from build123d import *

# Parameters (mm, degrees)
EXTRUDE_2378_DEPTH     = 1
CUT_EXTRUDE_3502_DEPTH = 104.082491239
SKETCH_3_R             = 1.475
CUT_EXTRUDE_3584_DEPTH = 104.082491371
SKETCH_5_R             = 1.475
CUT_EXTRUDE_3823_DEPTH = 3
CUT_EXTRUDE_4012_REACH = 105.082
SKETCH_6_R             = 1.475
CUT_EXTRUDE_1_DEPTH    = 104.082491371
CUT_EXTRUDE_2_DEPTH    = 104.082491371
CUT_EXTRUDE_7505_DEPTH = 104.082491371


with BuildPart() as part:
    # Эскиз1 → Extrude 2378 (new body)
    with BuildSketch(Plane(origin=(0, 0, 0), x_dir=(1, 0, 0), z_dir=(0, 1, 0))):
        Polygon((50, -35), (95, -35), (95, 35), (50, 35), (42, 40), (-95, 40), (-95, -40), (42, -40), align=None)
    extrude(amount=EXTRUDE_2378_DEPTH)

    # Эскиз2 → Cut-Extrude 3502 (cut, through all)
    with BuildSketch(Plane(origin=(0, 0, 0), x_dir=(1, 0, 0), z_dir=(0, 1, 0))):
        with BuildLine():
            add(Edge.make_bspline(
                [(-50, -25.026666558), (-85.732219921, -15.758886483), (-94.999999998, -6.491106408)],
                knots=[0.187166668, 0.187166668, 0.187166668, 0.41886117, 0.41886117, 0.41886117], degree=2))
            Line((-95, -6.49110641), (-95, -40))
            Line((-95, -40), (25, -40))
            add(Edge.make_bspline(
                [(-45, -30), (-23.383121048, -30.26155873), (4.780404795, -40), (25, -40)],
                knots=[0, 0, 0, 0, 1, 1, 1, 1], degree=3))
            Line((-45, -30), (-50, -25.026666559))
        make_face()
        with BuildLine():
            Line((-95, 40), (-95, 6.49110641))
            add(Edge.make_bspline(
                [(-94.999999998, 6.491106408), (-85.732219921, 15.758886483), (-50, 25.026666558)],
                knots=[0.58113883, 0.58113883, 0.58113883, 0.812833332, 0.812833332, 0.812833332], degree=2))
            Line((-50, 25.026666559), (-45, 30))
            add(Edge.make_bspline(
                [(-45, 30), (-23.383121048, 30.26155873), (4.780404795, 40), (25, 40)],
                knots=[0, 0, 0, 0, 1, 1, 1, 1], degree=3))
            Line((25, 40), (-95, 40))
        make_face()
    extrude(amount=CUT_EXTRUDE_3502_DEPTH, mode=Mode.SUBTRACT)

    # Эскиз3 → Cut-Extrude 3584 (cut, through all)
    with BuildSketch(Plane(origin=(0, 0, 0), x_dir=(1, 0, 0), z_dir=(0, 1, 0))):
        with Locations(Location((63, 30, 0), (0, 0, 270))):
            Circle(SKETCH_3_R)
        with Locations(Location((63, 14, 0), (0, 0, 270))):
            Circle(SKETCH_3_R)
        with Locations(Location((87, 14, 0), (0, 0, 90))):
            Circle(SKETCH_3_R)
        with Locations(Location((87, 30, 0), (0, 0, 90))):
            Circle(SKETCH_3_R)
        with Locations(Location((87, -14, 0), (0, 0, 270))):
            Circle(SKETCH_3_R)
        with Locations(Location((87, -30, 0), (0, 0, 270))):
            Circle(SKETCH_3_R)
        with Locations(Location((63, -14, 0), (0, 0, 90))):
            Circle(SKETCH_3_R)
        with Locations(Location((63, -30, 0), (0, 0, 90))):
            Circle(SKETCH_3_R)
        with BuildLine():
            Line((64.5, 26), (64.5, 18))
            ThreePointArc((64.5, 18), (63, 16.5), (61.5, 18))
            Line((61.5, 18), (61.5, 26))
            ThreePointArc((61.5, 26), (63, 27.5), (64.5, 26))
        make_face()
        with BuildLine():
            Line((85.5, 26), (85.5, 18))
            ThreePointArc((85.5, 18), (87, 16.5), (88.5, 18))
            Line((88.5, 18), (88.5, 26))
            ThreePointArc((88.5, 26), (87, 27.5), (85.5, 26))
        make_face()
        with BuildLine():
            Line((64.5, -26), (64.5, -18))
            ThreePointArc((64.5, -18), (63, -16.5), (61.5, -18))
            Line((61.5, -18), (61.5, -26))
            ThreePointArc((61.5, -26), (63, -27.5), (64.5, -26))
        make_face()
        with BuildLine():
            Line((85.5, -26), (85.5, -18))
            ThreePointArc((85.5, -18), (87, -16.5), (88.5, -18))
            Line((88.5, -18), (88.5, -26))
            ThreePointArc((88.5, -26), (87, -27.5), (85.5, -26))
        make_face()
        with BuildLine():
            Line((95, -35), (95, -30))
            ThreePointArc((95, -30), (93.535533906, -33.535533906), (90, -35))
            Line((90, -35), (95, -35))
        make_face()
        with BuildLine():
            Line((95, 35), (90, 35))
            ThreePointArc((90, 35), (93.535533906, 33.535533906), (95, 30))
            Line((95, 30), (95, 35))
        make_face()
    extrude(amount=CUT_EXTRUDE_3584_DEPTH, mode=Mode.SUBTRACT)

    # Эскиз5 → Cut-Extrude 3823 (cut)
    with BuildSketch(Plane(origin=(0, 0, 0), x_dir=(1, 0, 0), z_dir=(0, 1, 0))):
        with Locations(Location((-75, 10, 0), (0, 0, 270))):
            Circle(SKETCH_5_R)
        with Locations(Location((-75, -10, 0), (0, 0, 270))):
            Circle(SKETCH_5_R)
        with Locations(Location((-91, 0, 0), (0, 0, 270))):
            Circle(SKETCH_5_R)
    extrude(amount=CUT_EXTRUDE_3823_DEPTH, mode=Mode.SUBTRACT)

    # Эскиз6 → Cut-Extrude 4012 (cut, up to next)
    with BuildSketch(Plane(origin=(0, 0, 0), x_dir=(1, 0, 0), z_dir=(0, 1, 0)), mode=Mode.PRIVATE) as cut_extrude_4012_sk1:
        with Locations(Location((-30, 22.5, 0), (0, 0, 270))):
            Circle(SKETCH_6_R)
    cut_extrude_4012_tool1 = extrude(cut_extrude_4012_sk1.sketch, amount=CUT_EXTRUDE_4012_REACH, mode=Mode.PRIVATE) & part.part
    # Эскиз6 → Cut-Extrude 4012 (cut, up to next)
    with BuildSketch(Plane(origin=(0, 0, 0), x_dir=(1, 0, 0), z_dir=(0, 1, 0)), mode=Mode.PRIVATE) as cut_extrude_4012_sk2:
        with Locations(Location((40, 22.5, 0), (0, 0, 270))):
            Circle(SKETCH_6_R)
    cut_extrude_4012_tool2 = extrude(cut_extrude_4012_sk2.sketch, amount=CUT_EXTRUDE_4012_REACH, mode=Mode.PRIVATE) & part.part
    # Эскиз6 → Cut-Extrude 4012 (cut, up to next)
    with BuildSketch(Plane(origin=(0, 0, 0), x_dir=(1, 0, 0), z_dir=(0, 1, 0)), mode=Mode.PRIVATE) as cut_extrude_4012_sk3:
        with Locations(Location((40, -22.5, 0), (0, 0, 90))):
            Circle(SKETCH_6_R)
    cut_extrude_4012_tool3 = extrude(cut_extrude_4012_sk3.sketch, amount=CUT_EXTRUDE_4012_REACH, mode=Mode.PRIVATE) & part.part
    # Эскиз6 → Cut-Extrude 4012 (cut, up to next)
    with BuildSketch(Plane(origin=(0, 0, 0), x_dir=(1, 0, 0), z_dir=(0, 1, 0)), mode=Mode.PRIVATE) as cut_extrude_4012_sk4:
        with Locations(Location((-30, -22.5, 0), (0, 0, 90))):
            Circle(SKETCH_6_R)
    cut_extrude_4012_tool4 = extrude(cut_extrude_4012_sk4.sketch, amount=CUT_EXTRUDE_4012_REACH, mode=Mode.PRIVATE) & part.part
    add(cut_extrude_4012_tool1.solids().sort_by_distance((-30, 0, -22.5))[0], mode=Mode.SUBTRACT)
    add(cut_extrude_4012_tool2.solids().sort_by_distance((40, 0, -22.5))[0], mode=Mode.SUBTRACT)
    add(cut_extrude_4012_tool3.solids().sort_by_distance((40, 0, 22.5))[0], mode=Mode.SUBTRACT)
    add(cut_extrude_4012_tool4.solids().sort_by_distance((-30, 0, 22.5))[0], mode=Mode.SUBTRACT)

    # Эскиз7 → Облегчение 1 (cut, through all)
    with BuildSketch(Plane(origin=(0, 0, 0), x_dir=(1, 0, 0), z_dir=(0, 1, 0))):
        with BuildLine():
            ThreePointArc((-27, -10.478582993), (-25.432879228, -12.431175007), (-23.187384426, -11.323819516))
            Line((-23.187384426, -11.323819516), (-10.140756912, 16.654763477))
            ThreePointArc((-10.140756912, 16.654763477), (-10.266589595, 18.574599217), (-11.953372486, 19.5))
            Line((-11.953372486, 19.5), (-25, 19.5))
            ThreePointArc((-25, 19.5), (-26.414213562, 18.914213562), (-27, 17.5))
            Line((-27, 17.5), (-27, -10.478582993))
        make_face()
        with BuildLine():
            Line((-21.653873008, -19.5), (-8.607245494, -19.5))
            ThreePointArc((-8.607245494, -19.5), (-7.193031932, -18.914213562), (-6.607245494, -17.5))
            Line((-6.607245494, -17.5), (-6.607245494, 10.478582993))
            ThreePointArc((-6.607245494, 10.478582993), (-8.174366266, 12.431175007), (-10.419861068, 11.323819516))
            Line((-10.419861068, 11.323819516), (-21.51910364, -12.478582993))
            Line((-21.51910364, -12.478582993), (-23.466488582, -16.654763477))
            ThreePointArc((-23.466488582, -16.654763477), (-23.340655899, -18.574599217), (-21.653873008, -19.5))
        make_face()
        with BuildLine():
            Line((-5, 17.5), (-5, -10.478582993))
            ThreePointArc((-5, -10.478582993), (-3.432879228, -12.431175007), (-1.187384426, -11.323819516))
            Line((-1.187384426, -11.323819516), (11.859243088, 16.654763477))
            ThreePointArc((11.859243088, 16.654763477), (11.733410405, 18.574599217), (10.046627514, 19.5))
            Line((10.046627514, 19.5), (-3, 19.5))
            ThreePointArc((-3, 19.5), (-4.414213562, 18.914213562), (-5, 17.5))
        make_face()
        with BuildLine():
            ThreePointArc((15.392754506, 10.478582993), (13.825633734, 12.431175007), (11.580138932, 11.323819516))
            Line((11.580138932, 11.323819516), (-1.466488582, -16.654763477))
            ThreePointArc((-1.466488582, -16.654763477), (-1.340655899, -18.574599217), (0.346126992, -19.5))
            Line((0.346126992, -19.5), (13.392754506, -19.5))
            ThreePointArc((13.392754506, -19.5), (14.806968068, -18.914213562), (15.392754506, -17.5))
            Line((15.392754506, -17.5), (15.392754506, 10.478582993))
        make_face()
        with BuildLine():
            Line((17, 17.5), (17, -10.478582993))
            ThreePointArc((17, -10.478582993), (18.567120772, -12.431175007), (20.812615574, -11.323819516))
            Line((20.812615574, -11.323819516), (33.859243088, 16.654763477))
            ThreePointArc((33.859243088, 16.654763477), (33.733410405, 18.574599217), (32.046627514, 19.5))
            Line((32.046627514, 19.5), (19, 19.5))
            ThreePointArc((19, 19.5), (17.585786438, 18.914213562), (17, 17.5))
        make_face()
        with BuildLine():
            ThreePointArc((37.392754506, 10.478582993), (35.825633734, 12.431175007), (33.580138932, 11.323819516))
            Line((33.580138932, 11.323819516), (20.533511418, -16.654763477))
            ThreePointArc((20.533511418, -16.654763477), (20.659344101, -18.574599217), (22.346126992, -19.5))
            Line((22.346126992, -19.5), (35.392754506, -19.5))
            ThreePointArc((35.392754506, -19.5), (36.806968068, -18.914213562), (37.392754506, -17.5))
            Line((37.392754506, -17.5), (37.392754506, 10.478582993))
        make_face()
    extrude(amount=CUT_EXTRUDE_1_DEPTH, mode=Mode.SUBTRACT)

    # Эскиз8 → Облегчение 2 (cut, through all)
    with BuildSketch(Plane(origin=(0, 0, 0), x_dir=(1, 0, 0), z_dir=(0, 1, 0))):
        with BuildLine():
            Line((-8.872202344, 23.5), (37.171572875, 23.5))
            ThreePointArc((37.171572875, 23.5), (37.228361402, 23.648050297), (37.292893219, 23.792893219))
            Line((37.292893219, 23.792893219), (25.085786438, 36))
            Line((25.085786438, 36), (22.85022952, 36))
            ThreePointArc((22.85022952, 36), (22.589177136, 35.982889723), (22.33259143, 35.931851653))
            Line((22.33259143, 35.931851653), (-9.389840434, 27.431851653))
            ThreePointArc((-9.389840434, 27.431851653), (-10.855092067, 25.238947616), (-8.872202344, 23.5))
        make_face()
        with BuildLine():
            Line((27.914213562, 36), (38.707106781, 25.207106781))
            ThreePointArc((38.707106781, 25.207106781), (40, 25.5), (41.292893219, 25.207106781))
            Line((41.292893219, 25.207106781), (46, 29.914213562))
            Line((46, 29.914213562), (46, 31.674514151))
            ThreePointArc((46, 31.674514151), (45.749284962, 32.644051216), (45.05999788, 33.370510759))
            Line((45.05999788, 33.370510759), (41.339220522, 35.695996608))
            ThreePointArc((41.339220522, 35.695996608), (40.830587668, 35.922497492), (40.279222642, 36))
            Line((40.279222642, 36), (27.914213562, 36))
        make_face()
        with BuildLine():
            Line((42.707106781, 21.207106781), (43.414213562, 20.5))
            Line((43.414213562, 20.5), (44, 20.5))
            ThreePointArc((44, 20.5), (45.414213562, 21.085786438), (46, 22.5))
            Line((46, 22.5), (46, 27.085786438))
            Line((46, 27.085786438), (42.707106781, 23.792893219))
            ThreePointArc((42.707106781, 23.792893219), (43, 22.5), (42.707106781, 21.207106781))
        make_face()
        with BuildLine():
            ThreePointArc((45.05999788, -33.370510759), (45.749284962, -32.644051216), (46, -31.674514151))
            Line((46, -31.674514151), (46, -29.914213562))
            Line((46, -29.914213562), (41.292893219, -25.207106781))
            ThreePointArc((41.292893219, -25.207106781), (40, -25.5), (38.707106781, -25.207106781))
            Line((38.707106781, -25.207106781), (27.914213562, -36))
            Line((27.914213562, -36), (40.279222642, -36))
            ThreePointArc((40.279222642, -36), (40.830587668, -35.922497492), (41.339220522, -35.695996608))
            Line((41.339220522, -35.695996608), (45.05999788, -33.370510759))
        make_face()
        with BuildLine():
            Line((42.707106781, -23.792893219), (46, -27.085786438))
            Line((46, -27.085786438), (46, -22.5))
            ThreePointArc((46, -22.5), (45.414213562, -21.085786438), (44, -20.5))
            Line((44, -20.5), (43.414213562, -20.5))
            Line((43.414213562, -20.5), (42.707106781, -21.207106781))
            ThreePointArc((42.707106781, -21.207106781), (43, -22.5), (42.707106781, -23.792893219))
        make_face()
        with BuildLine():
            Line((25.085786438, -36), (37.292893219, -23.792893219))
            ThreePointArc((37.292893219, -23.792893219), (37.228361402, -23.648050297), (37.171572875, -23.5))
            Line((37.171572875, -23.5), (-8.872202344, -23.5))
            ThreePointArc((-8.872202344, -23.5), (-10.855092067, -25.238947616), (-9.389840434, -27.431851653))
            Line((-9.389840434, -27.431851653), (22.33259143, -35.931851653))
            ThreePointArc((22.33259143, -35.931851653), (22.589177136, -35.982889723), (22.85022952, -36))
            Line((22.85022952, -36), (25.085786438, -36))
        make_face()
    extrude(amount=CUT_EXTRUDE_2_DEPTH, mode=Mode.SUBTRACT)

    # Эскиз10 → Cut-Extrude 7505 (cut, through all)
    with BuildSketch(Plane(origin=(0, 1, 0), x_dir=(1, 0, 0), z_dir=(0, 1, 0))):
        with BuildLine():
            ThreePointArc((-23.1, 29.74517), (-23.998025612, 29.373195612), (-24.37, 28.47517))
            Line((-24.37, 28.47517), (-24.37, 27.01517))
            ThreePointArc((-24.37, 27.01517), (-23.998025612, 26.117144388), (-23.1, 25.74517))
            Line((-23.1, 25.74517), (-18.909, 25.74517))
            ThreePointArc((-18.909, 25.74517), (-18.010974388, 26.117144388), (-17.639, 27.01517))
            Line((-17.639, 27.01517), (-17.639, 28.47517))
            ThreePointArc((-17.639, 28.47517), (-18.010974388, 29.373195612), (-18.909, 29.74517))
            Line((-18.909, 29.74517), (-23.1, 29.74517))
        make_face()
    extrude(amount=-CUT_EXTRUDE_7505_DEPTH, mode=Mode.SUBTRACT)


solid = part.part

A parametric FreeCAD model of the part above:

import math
import FreeCAD as App
import Part
import Sketcher
from FreeCAD import Vector
Q = App.Units.Quantity

doc = App.newDocument("Part")
body = doc.addObject("PartDesign::Body", "Body")

# Sketch on XZ plane
sketch1 = body.newObject("Sketcher::SketchObject", "Sketch")
sketch1.AttachmentSupport = (doc.getObject("XZ_Plane"), [""])
sketch1.MapMode = "FlatFace"
sketch1.addGeometry([
    Part.LineSegment(Vector(50, 35, 0), Vector(95, 35, 0)),  # 0
    Part.LineSegment(Vector(95, 35, 0), Vector(95, -35, 0)),  # 1
    Part.LineSegment(Vector(95, -35, 0), Vector(50, -35, 0)),  # 2
    Part.LineSegment(Vector(50, -35, 0), Vector(42, -40, 0)),  # 3
    Part.LineSegment(Vector(42, -40, 0), Vector(-95, -40, 0)),  # 4
    Part.LineSegment(Vector(-95, -40, 0), Vector(-95, 40, 0)),  # 5
    Part.LineSegment(Vector(-95, 40, 0), Vector(42, 40, 0)),  # 6
    Part.LineSegment(Vector(42, 40, 0), Vector(50, 35, 0)),  # 7
], False)
sketch1.addConstraint([
    Sketcher.Constraint("Coincident", 0, 2, 1, 1),
    Sketcher.Constraint("Coincident", 1, 2, 2, 1),
    Sketcher.Constraint("Coincident", 2, 2, 3, 1),
    Sketcher.Constraint("Coincident", 3, 2, 4, 1),
    Sketcher.Constraint("Coincident", 4, 2, 5, 1),
    Sketcher.Constraint("Coincident", 5, 2, 6, 1),
    Sketcher.Constraint("Coincident", 6, 2, 7, 1),
    Sketcher.Constraint("Coincident", 7, 2, 0, 1),
    Sketcher.Constraint("Horizontal", 0),
    Sketcher.Constraint("Vertical", 1),
    Sketcher.Constraint("Horizontal", 2),
    Sketcher.Constraint("Horizontal", 4),
    Sketcher.Constraint("Vertical", 5),
    Sketcher.Constraint("Horizontal", 6),
    Sketcher.Constraint("Symmetric", 3, 2, 6, 2, -1),
    Sketcher.Constraint("Symmetric", 2, 2, 7, 2, -1),
    Sketcher.Constraint("DistanceX", 0, 1, 0, 2, 45.0),
    Sketcher.Constraint("DistanceX", 4, 2, 4, 1, 137.0),
    Sketcher.Constraint("DistanceY", 1, 2, 1, 1, 70.0),
    Sketcher.Constraint("DistanceY", 5, 1, 5, 2, 80.0),
    Sketcher.Constraint("DistanceX", -1, 1, 0, 2, 95.0),
    Sketcher.Constraint("DistanceX", -1, 1, 3, 2, 42.0),
])
pad1 = body.newObject("PartDesign::Pad", "Pad")
pad1.Profile = sketch1
pad1.Length = 1
pad1.Reversed = True

# Sketch on XZ plane
sketch2 = body.newObject("Sketcher::SketchObject", "Sketch001")
sketch2.AttachmentSupport = (doc.getObject("XZ_Plane"), [""])
sketch2.MapMode = "FlatFace"
sketch2.addGeometry([
    Part.BSplineCurve([Vector(-50, 25.026667, 0), Vector(-85.73222, 15.758886, 0), Vector(-95, 6.491106, 0)], [3, 3], [0.187166668, 0.41886117], False, 2, [1, 1, 1], False),  # 0
    Part.LineSegment(Vector(-95, 6.491106, 0), Vector(-95, 40, 0)),  # 1
    Part.LineSegment(Vector(-95, 40, 0), Vector(25, 40, 0)),  # 2
    Part.BSplineCurve([Vector(-45, 30, 0), Vector(-23.383121, 30.261559, 0), Vector(4.780405, 40, 0), Vector(25, 40, 0)], [4, 4], [0, 1], False, 3, [1, 1, 1, 1], False),  # 3
    Part.LineSegment(Vector(-45, 30, 0), Vector(-50, 25.026667, 0)),  # 4
    Part.LineSegment(Vector(-95, -40, 0), Vector(-95, -6.491106, 0)),  # 5
    Part.BSplineCurve([Vector(-95, -6.491106, 0), Vector(-85.73222, -15.758886, 0), Vector(-50, -25.026667, 0)], [3, 3], [0.58113883, 0.812833332], False, 2, [1, 1, 1], False),  # 6
    Part.LineSegment(Vector(-50, -25.026667, 0), Vector(-45, -30, 0)),  # 7
    Part.BSplineCurve([Vector(-45, -30, 0), Vector(-23.383121, -30.261559, 0), Vector(4.780405, -40, 0), Vector(25, -40, 0)], [4, 4], [0, 1], False, 3, [1, 1, 1, 1], False),  # 8
    Part.LineSegment(Vector(25, -40, 0), Vector(-95, -40, 0)),  # 9
], False)
sketch2.addConstraint([
    Sketcher.Constraint("Block", 0),
    Sketcher.Constraint("Block", 3),
    Sketcher.Constraint("Block", 6),
    Sketcher.Constraint("Block", 8),
    Sketcher.Constraint("Coincident", 0, 2, 1, 1),
    Sketcher.Constraint("Coincident", 1, 2, 2, 1),
    Sketcher.Constraint("Coincident", 2, 2, 3, 2),
    Sketcher.Constraint("Coincident", 3, 1, 4, 1),
    Sketcher.Constraint("Coincident", 4, 2, 0, 1),
    Sketcher.Constraint("Coincident", 5, 2, 6, 1),
    Sketcher.Constraint("Coincident", 6, 2, 7, 1),
    Sketcher.Constraint("Coincident", 7, 2, 8, 1),
    Sketcher.Constraint("Coincident", 8, 2, 9, 1),
    Sketcher.Constraint("Coincident", 9, 2, 5, 1),
    Sketcher.Constraint("Vertical", 1),
    Sketcher.Constraint("Horizontal", 2),
    Sketcher.Constraint("Vertical", 5),
    Sketcher.Constraint("Horizontal", 9),
])
pocket1 = body.newObject("PartDesign::Pocket", "Pocket")
pocket1.Profile = sketch2
pocket1.Type = "ThroughAll"

# Sketch on XZ plane
sketch3 = body.newObject("Sketcher::SketchObject", "Sketch002")
sketch3.AttachmentSupport = (doc.getObject("XZ_Plane"), [""])
sketch3.MapMode = "FlatFace"
sketch3.addGeometry([
    Part.Circle(Vector(63, -30, 0), Vector(0, 0, 1), 1.475),  # 0
    Part.Circle(Vector(63, -14, 0), Vector(0, 0, 1), 1.475),  # 1
    Part.Circle(Vector(87, -14, 0), Vector(0, 0, 1), 1.475),  # 2
    Part.Circle(Vector(87, -30, 0), Vector(0, 0, 1), 1.475),  # 3
    Part.Circle(Vector(87, 14, 0), Vector(0, 0, 1), 1.475),  # 4
    Part.Circle(Vector(87, 30, 0), Vector(0, 0, 1), 1.475),  # 5
    Part.Circle(Vector(63, 14, 0), Vector(0, 0, 1), 1.475),  # 6
    Part.Circle(Vector(63, 30, 0), Vector(0, 0, 1), 1.475),  # 7
    Part.LineSegment(Vector(64.5, -18, 0), Vector(64.5, -26, 0)),  # 8
    Part.ArcOfCircle(Part.Circle(Vector(63, -26, 0), Vector(0, 0, 1), 1.5), math.radians(180), math.radians(360)),  # 9
    Part.LineSegment(Vector(61.5, -26, 0), Vector(61.5, -18, 0)),  # 10
    Part.ArcOfCircle(Part.Circle(Vector(63, -18, 0), Vector(0, 0, 1), 1.5), math.radians(0), math.radians(180)),  # 11
    Part.LineSegment(Vector(85.5, -26, 0), Vector(85.5, -18, 0)),  # 12
    Part.ArcOfCircle(Part.Circle(Vector(87, -18, 0), Vector(0, 0, 1), 1.5), math.radians(0), math.radians(180)),  # 13
    Part.LineSegment(Vector(88.5, -18, 0), Vector(88.5, -26, 0)),  # 14
    Part.ArcOfCircle(Part.Circle(Vector(87, -26, 0), Vector(0, 0, 1), 1.5), math.radians(180), math.radians(360)),  # 15
    Part.LineSegment(Vector(64.5, 26, 0), Vector(64.5, 18, 0)),  # 16
    Part.ArcOfCircle(Part.Circle(Vector(63, 18, 0), Vector(0, 0, 1), 1.5), math.radians(180), math.radians(360)),  # 17
    Part.LineSegment(Vector(61.5, 18, 0), Vector(61.5, 26, 0)),  # 18
    Part.ArcOfCircle(Part.Circle(Vector(63, 26, 0), Vector(0, 0, 1), 1.5), math.radians(0), math.radians(180)),  # 19
    Part.LineSegment(Vector(85.5, 18, 0), Vector(85.5, 26, 0)),  # 20
    Part.ArcOfCircle(Part.Circle(Vector(87, 26, 0), Vector(0, 0, 1), 1.5), math.radians(0), math.radians(180)),  # 21
    Part.LineSegment(Vector(88.5, 26, 0), Vector(88.5, 18, 0)),  # 22
    Part.ArcOfCircle(Part.Circle(Vector(87, 18, 0), Vector(0, 0, 1), 1.5), math.radians(180), math.radians(360)),  # 23
    Part.LineSegment(Vector(95, 35, 0), Vector(95, 30, 0)),  # 24
    Part.ArcOfCircle(Part.Circle(Vector(90, 30, 0), Vector(0, 0, 1), 5), math.radians(0), math.radians(90)),  # 25
    Part.LineSegment(Vector(90, 35, 0), Vector(95, 35, 0)),  # 26
    Part.LineSegment(Vector(95, -35, 0), Vector(90, -35, 0)),  # 27
    Part.ArcOfCircle(Part.Circle(Vector(90, -30, 0), Vector(0, 0, 1), 5), math.radians(-90), math.radians(0)),  # 28
    Part.LineSegment(Vector(95, -30, 0), Vector(95, -35, 0)),  # 29
], False)
sketch3.addConstraint([
    Sketcher.Constraint("Tangent", 8, 2, 9, 2),
    Sketcher.Constraint("Tangent", 9, 1, 10, 1),
    Sketcher.Constraint("Tangent", 10, 2, 11, 2),
    Sketcher.Constraint("Tangent", 11, 1, 8, 1),
    Sketcher.Constraint("Tangent", 12, 2, 13, 2),
    Sketcher.Constraint("Tangent", 13, 1, 14, 1),
    Sketcher.Constraint("Tangent", 14, 2, 15, 2),
    Sketcher.Constraint("Tangent", 15, 1, 12, 1),
    Sketcher.Constraint("Tangent", 16, 2, 17, 2),
    Sketcher.Constraint("Tangent", 17, 1, 18, 1),
    Sketcher.Constraint("Tangent", 18, 2, 19, 2),
    Sketcher.Constraint("Tangent", 19, 1, 16, 1),
    Sketcher.Constraint("Tangent", 20, 2, 21, 2),
    Sketcher.Constraint("Tangent", 21, 1, 22, 1),
    Sketcher.Constraint("Tangent", 22, 2, 23, 2),
    Sketcher.Constraint("Tangent", 23, 1, 20, 1),
    Sketcher.Constraint("Tangent", 24, 2, 25, 1),
    Sketcher.Constraint("Tangent", 25, 2, 26, 1),
    Sketcher.Constraint("Coincident", 26, 2, 24, 1),
    Sketcher.Constraint("Tangent", 27, 2, 28, 1),
    Sketcher.Constraint("Tangent", 28, 2, 29, 1),
    Sketcher.Constraint("Coincident", 29, 2, 27, 1),
    Sketcher.Constraint("Vertical", 8),
    Sketcher.Constraint("Vertical", 10),
    Sketcher.Constraint("Vertical", 12),
    Sketcher.Constraint("Vertical", 14),
    Sketcher.Constraint("Vertical", 16),
    Sketcher.Constraint("Vertical", 18),
    Sketcher.Constraint("Vertical", 20),
    Sketcher.Constraint("Vertical", 22),
    Sketcher.Constraint("Vertical", 24),
    Sketcher.Constraint("Horizontal", 26),
    Sketcher.Constraint("Horizontal", 27),
    Sketcher.Constraint("Vertical", 29),
    Sketcher.Constraint("Equal", 0, 1),
    Sketcher.Constraint("Equal", 1, 2),
    Sketcher.Constraint("Equal", 2, 3),
    Sketcher.Constraint("Equal", 3, 4),
    Sketcher.Constraint("Equal", 4, 5),
    Sketcher.Constraint("Equal", 5, 6),
    Sketcher.Constraint("Equal", 6, 7),
    Sketcher.Constraint("Equal", 11, 13),
    Sketcher.Constraint("Equal", 15, 17),
    Sketcher.Constraint("Equal", 19, 21),
    Sketcher.Constraint("Equal", 25, 28),
    Sketcher.Constraint("Symmetric", 2, 3, 4, 3, -1),
    Sketcher.Constraint("Symmetric", 3, 3, 5, 3, -1),
    Sketcher.Constraint("Symmetric", 1, 3, 6, 3, -1),
    Sketcher.Constraint("Symmetric", 0, 3, 7, 3, -1),
    Sketcher.Constraint("Symmetric", 11, 3, 17, 3, -1),
    Sketcher.Constraint("Symmetric", 15, 3, 21, 3, -1),
    Sketcher.Constraint("Symmetric", 25, 3, 28, 3, -1),
    Sketcher.Constraint("Horizontal", 1, 3, 2, 3),
    Sketcher.Constraint("Horizontal", 0, 3, 3, 3),
    Sketcher.Constraint("Horizontal", 11, 3, 13, 3),
    Sketcher.Constraint("Horizontal", 9, 3, 15, 3),
    Sketcher.Constraint("Horizontal", 19, 3, 21, 3),
    Sketcher.Constraint("Horizontal", 17, 3, 23, 3),
    Sketcher.Constraint("Horizontal", 7, 3, 25, 3),
    Sketcher.Constraint("Vertical", 0, 3, 1, 3),
    Sketcher.Constraint("Vertical", 2, 3, 3, 3),
    Sketcher.Constraint("Vertical", 7, 3, 9, 3),
    Sketcher.Constraint("Vertical", 5, 3, 13, 3),
    Sketcher.Constraint("Radius", 25, 5.0),
    Sketcher.Constraint("Radius", 9, 1.5),
    Sketcher.Constraint("Diameter", 0, 2.95),
    Sketcher.Constraint("DistanceY", 8, 2, 8, 1, 8.0),
    Sketcher.Constraint("DistanceX", -1, 1, 0, 3, 63.0),
    Sketcher.Constraint("DistanceY", 0, 3, -1, 1, 30.0),
    Sketcher.Constraint("DistanceY", 1, 3, -1, 1, 14.0),
    Sketcher.Constraint("DistanceX", -1, 1, 2, 3, 87.0),
    Sketcher.Constraint("DistanceY", 9, 3, -1, 1, 26.0),
    Sketcher.Constraint("DistanceX", -1, 1, 25, 3, 90.0),
])
pocket2 = body.newObject("PartDesign::Pocket", "Pocket001")
pocket2.Profile = sketch3
pocket2.Type = "ThroughAll"

# Sketch on XZ plane
sketch4 = body.newObject("Sketcher::SketchObject", "Sketch003")
sketch4.AttachmentSupport = (doc.getObject("XZ_Plane"), [""])
sketch4.MapMode = "FlatFace"
sketch4.addGeometry([
    Part.Circle(Vector(-75, -10, 0), Vector(0, 0, 1), 1.475),
    Part.Circle(Vector(-75, 10, 0), Vector(0, 0, 1), 1.475),
    Part.Circle(Vector(-91, 0, 0), Vector(0, 0, 1), 1.475),
], False)
sketch4.addConstraint([
    Sketcher.Constraint("Equal", 0, 1),
    Sketcher.Constraint("Equal", 1, 2),
    Sketcher.Constraint("Symmetric", 0, 3, 1, 3, -1),
    Sketcher.Constraint("PointOnObject", 2, 3, -1),
    Sketcher.Constraint("Diameter", 0, 2.95),
    Sketcher.Constraint("DistanceX", 0, 3, -1, 1, 75.0),
    Sketcher.Constraint("DistanceY", 0, 3, -1, 1, 10.0),
    Sketcher.Constraint("DistanceX", 2, 3, -1, 1, 91.0),
])
pocket3 = body.newObject("PartDesign::Pocket", "Pocket002")
pocket3.Profile = sketch4
pocket3.Length = 3

# Sketch on XZ plane
sketch5 = body.newObject("Sketcher::SketchObject", "Sketch004")
sketch5.AttachmentSupport = (doc.getObject("XZ_Plane"), [""])
sketch5.MapMode = "FlatFace"
sketch5.addGeometry(Part.Circle(Vector(-30, -22.5, 0), Vector(0, 0, 1), 1.475), False)
sketch5.addConstraint([
    Sketcher.Constraint("Diameter", 0, 2.95),
    Sketcher.Constraint("DistanceX", 0, 3, -1, 1, 30.0),
    Sketcher.Constraint("DistanceY", 0, 3, -1, 1, 22.5),
])
pocket4 = body.newObject("PartDesign::Pocket", "Pocket003")
pocket4.Profile = sketch5
pocket4.Type = "UpToFirst"

# Sketch on XZ plane
sketch6 = body.newObject("Sketcher::SketchObject", "Sketch005")
sketch6.AttachmentSupport = (doc.getObject("XZ_Plane"), [""])
sketch6.MapMode = "FlatFace"
sketch6.addGeometry(Part.Circle(Vector(40, -22.5, 0), Vector(0, 0, 1), 1.475), False)
sketch6.addConstraint([
    Sketcher.Constraint("Diameter", 0, 2.95),
    Sketcher.Constraint("DistanceX", -1, 1, 0, 3, 40.0),
    Sketcher.Constraint("DistanceY", 0, 3, -1, 1, 22.5),
])
pocket5 = body.newObject("PartDesign::Pocket", "Pocket004")
pocket5.Profile = sketch6
pocket5.Type = "UpToFirst"

# Sketch on XZ plane
sketch7 = body.newObject("Sketcher::SketchObject", "Sketch006")
sketch7.AttachmentSupport = (doc.getObject("XZ_Plane"), [""])
sketch7.MapMode = "FlatFace"
sketch7.addGeometry(Part.Circle(Vector(40, 22.5, 0), Vector(0, 0, 1), 1.475), False)
sketch7.addConstraint([
    Sketcher.Constraint("Diameter", 0, 2.95),
    Sketcher.Constraint("DistanceX", -1, 1, 0, 3, 40.0),
    Sketcher.Constraint("DistanceY", -1, 1, 0, 3, 22.5),
])
pocket6 = body.newObject("PartDesign::Pocket", "Pocket005")
pocket6.Profile = sketch7
pocket6.Type = "UpToFirst"

# Sketch on XZ plane
sketch8 = body.newObject("Sketcher::SketchObject", "Sketch007")
sketch8.AttachmentSupport = (doc.getObject("XZ_Plane"), [""])
sketch8.MapMode = "FlatFace"
sketch8.addGeometry(Part.Circle(Vector(-30, 22.5, 0), Vector(0, 0, 1), 1.475), False)
sketch8.addConstraint([
    Sketcher.Constraint("Diameter", 0, 2.95),
    Sketcher.Constraint("DistanceX", 0, 3, -1, 1, 30.0),
    Sketcher.Constraint("DistanceY", -1, 1, 0, 3, 22.5),
])
pocket7 = body.newObject("PartDesign::Pocket", "Pocket006")
pocket7.Profile = sketch8
pocket7.Type = "UpToFirst"

# Sketch on XZ plane
sketch9 = body.newObject("Sketcher::SketchObject", "Sketch008")
sketch9.AttachmentSupport = (doc.getObject("XZ_Plane"), [""])
sketch9.MapMode = "FlatFace"
sketch9.addGeometry([
    Part.ArcOfCircle(Part.Circle(Vector(-25, 10.478583, 0), Vector(0, 0, 1), 2), math.radians(25), math.radians(180)),  # 0
    Part.LineSegment(Vector(-23.187384, 11.32382, 0), Vector(-10.140757, -16.654763, 0)),  # 1
    Part.ArcOfCircle(Part.Circle(Vector(-11.953372, -17.5, 0), Vector(0, 0, 1), 2), math.radians(-90), math.radians(25)),  # 2
    Part.LineSegment(Vector(-11.953372, -19.5, 0), Vector(-25, -19.5, 0)),  # 3
    Part.ArcOfCircle(Part.Circle(Vector(-25, -17.5, 0), Vector(0, 0, 1), 2), math.radians(-180), math.radians(-90)),  # 4
    Part.LineSegment(Vector(-27, -17.5, 0), Vector(-27, 10.478583, 0)),  # 5
    Part.LineSegment(Vector(-21.653873, 19.5, 0), Vector(-8.607245, 19.5, 0)),  # 6
    Part.ArcOfCircle(Part.Circle(Vector(-8.607245, 17.5, 0), Vector(0, 0, 1), 2), math.radians(0), math.radians(90)),  # 7
    Part.LineSegment(Vector(-6.607245, 17.5, 0), Vector(-6.607245, -10.478583, 0)),  # 8
    Part.ArcOfCircle(Part.Circle(Vector(-8.607245, -10.478583, 0), Vector(0, 0, 1), 2), math.radians(-155), math.radians(0)),  # 9
    Part.LineSegment(Vector(-10.419861, -11.32382, 0), Vector(-21.519104, 12.478583, 0)),  # 10
    Part.LineSegment(Vector(-21.519104, 12.478583, 0), Vector(-23.466489, 16.654763, 0)),  # 11
    Part.ArcOfCircle(Part.Circle(Vector(-21.653873, 17.5, 0), Vector(0, 0, 1), 2), math.radians(90), math.radians(205)),  # 12
    Part.LineSegment(Vector(-5, -17.5, 0), Vector(-5, 10.478583, 0)),  # 13
    Part.ArcOfCircle(Part.Circle(Vector(-3, 10.478583, 0), Vector(0, 0, 1), 2), math.radians(25), math.radians(180)),  # 14
    Part.LineSegment(Vector(-1.187384, 11.32382, 0), Vector(11.859243, -16.654763, 0)),  # 15
    Part.ArcOfCircle(Part.Circle(Vector(10.046628, -17.5, 0), Vector(0, 0, 1), 2), math.radians(-90), math.radians(25)),  # 16
    Part.LineSegment(Vector(10.046628, -19.5, 0), Vector(-3, -19.5, 0)),  # 17
    Part.ArcOfCircle(Part.Circle(Vector(-3, -17.5, 0), Vector(0, 0, 1), 2), math.radians(-180), math.radians(-90)),  # 18
    Part.ArcOfCircle(Part.Circle(Vector(13.392755, -10.478583, 0), Vector(0, 0, 1), 2), math.radians(-155), math.radians(0)),  # 19
    Part.LineSegment(Vector(11.580139, -11.32382, 0), Vector(-1.466489, 16.654763, 0)),  # 20
    Part.ArcOfCircle(Part.Circle(Vector(0.346127, 17.5, 0), Vector(0, 0, 1), 2), math.radians(90), math.radians(205)),  # 21
    Part.LineSegment(Vector(0.346127, 19.5, 0), Vector(13.392755, 19.5, 0)),  # 22
    Part.ArcOfCircle(Part.Circle(Vector(13.392755, 17.5, 0), Vector(0, 0, 1), 2), math.radians(0), math.radians(90)),  # 23
    Part.LineSegment(Vector(15.392755, 17.5, 0), Vector(15.392755, -10.478583, 0)),  # 24
    Part.LineSegment(Vector(17, -17.5, 0), Vector(17, 10.478583, 0)),  # 25
    Part.ArcOfCircle(Part.Circle(Vector(19, 10.478583, 0), Vector(0, 0, 1), 2), math.radians(25), math.radians(180)),  # 26
    Part.LineSegment(Vector(20.812616, 11.32382, 0), Vector(33.859243, -16.654763, 0)),  # 27
    Part.ArcOfCircle(Part.Circle(Vector(32.046628, -17.5, 0), Vector(0, 0, 1), 2), math.radians(-90), math.radians(25)),  # 28
    Part.LineSegment(Vector(32.046628, -19.5, 0), Vector(19, -19.5, 0)),  # 29
    Part.ArcOfCircle(Part.Circle(Vector(19, -17.5, 0), Vector(0, 0, 1), 2), math.radians(-180), math.radians(-90)),  # 30
    Part.ArcOfCircle(Part.Circle(Vector(35.392755, -10.478583, 0), Vector(0, 0, 1), 2), math.radians(-155), math.radians(0)),  # 31
    Part.LineSegment(Vector(33.580139, -11.32382, 0), Vector(20.533511, 16.654763, 0)),  # 32
    Part.ArcOfCircle(Part.Circle(Vector(22.346127, 17.5, 0), Vector(0, 0, 1), 2), math.radians(90), math.radians(205)),  # 33
    Part.LineSegment(Vector(22.346127, 19.5, 0), Vector(35.392755, 19.5, 0)),  # 34
    Part.ArcOfCircle(Part.Circle(Vector(35.392755, 17.5, 0), Vector(0, 0, 1), 2), math.radians(0), math.radians(90)),  # 35
    Part.LineSegment(Vector(37.392755, 17.5, 0), Vector(37.392755, -10.478583, 0)),  # 36
], False)
sketch9.addConstraint([
    Sketcher.Constraint("Tangent", 0, 1, 1, 1),
    Sketcher.Constraint("Tangent", 1, 2, 2, 2),
    Sketcher.Constraint("Tangent", 2, 1, 3, 1),
    Sketcher.Constraint("Tangent", 3, 2, 4, 2),
    Sketcher.Constraint("Tangent", 4, 1, 5, 1),
    Sketcher.Constraint("Tangent", 5, 2, 0, 2),
    Sketcher.Constraint("Tangent", 6, 2, 7, 2),
    Sketcher.Constraint("Tangent", 7, 1, 8, 1),
    Sketcher.Constraint("Tangent", 8, 2, 9, 2),
    Sketcher.Constraint("Tangent", 9, 1, 10, 1),
    Sketcher.Constraint("Coincident", 10, 2, 11, 1),
    Sketcher.Constraint("Tangent", 11, 2, 12, 2),
    Sketcher.Constraint("Tangent", 12, 1, 6, 1),
    Sketcher.Constraint("Tangent", 13, 2, 14, 2),
    Sketcher.Constraint("Tangent", 14, 1, 15, 1),
    Sketcher.Constraint("Tangent", 15, 2, 16, 2),
    Sketcher.Constraint("Tangent", 16, 1, 17, 1),
    Sketcher.Constraint("Tangent", 17, 2, 18, 2),
    Sketcher.Constraint("Tangent", 18, 1, 13, 1),
    Sketcher.Constraint("Tangent", 19, 1, 20, 1),
    Sketcher.Constraint("Tangent", 20, 2, 21, 2),
    Sketcher.Constraint("Tangent", 21, 1, 22, 1),
    Sketcher.Constraint("Tangent", 22, 2, 23, 2),
    Sketcher.Constraint("Tangent", 23, 1, 24, 1),
    Sketcher.Constraint("Tangent", 24, 2, 19, 2),
    Sketcher.Constraint("Tangent", 25, 2, 26, 2),
    Sketcher.Constraint("Tangent", 26, 1, 27, 1),
    Sketcher.Constraint("Tangent", 27, 2, 28, 2),
    Sketcher.Constraint("Tangent", 28, 1, 29, 1),
    Sketcher.Constraint("Tangent", 29, 2, 30, 2),
    Sketcher.Constraint("Tangent", 30, 1, 25, 1),
    Sketcher.Constraint("Tangent", 31, 1, 32, 1),
    Sketcher.Constraint("Tangent", 32, 2, 33, 2),
    Sketcher.Constraint("Tangent", 33, 1, 34, 1),
    Sketcher.Constraint("Tangent", 34, 2, 35, 2),
    Sketcher.Constraint("Tangent", 35, 1, 36, 1),
    Sketcher.Constraint("Tangent", 36, 2, 31, 2),
    Sketcher.Constraint("Horizontal", 3),
    Sketcher.Constraint("Vertical", 5),
    Sketcher.Constraint("Horizontal", 6),
    Sketcher.Constraint("Vertical", 8),
    Sketcher.Constraint("Vertical", 13),
    Sketcher.Constraint("Horizontal", 17),
    Sketcher.Constraint("Horizontal", 22),
    Sketcher.Constraint("Vertical", 24),
    Sketcher.Constraint("Vertical", 25),
    Sketcher.Constraint("Horizontal", 29),
    Sketcher.Constraint("Horizontal", 34),
    Sketcher.Constraint("Vertical", 36),
    Sketcher.Constraint("Equal", 0, 2),
    Sketcher.Constraint("Equal", 2, 4),
    Sketcher.Constraint("Equal", 4, 7),
    Sketcher.Constraint("Equal", 7, 9),
    Sketcher.Constraint("Equal", 9, 12),
    Sketcher.Constraint("Equal", 12, 14),
    Sketcher.Constraint("Equal", 14, 16),
    Sketcher.Constraint("Equal", 16, 18),
    Sketcher.Constraint("Equal", 18, 19),
    Sketcher.Constraint("Equal", 19, 21),
    Sketcher.Constraint("Equal", 21, 23),
    Sketcher.Constraint("Equal", 23, 26),
    Sketcher.Constraint("Equal", 26, 28),
    Sketcher.Constraint("Equal", 28, 30),
    Sketcher.Constraint("Equal", 30, 31),
    Sketcher.Constraint("Equal", 31, 33),
    Sketcher.Constraint("Equal", 33, 35),
    Sketcher.Constraint("Parallel", 1, 10),
    Sketcher.Constraint("Parallel", 10, 11),
    Sketcher.Constraint("Parallel", 11, 15),
    Sketcher.Constraint("Parallel", 15, 20),
    Sketcher.Constraint("Parallel", 20, 27),
    Sketcher.Constraint("Parallel", 27, 32),
    Sketcher.Constraint("Horizontal", 0, 3, 14, 3),
    Sketcher.Constraint("Horizontal", 4, 3, 16, 3),
    Sketcher.Constraint("Horizontal", 9, 3, 19, 3),
    Sketcher.Constraint("Horizontal", 12, 3, 21, 3),
    Sketcher.Constraint("Horizontal", 14, 3, 26, 3),
    Sketcher.Constraint("Horizontal", 18, 3, 28, 3),
    Sketcher.Constraint("Horizontal", 19, 3, 31, 3),
    Sketcher.Constraint("Horizontal", 23, 3, 33, 3),
    Sketcher.Constraint("Equal", 3, 6),
    Sketcher.Constraint("Radius", 0, 2.0),
    Sketcher.Constraint("Angle", 1, Q("-65 deg")),
    Sketcher.Constraint("DistanceX", 0, 3, -1, 1, 25.0),
    Sketcher.Constraint("DistanceX", 14, 3, -1, 1, 3.0),
    Sketcher.Constraint("DistanceX", -1, 1, 26, 3, 19.0),
    Sketcher.Constraint("DistanceY", 2, 3, 7, 3, 35.0),
    Sketcher.Constraint("DistanceX", 9, 3, 19, 3, 22.0),
    Sketcher.Constraint("DistanceX", 19, 3, 31, 3, 22.0),
    Sketcher.Constraint("DistanceY", 0, 3, 10, 2, 2.0),
    Sketcher.Constraint("DistanceY", 2, 3, -1, 1, 17.5),
    Sketcher.Constraint("DistanceX", 12, 3, 2, 3, 9.700501),
    Sketcher.Constraint("Distance", 1, 30.870951),
])
pocket8 = body.newObject("PartDesign::Pocket", "Pocket007")
pocket8.Profile = sketch9
pocket8.Type = "ThroughAll"

# Sketch on XZ plane
sketch10 = body.newObject("Sketcher::SketchObject", "Sketch009")
sketch10.AttachmentSupport = (doc.getObject("XZ_Plane"), [""])
sketch10.MapMode = "FlatFace"
sketch10.addGeometry([
    Part.LineSegment(Vector(-8.872202, -23.5, 0), Vector(37.171573, -23.5, 0)),  # 0
    Part.ArcOfCircle(Part.Circle(Vector(40, -22.5, 0), Vector(0, 0, 1), 3), math.radians(-160.52878), math.radians(-154.47122)),  # 1
    Part.LineSegment(Vector(37.292893, -23.792893, 0), Vector(25.085786, -36, 0)),  # 2
    Part.LineSegment(Vector(25.085786, -36, 0), Vector(22.85023, -36, 0)),  # 3
    Part.ArcOfCircle(Part.Circle(Vector(22.85023, -34, 0), Vector(0, 0, 1), 2), math.radians(-105), math.radians(-90)),  # 4
    Part.LineSegment(Vector(22.332591, -35.931852, 0), Vector(-9.38984, -27.431852, 0)),  # 5
    Part.ArcOfCircle(Part.Circle(Vector(-8.872202, -25.5, 0), Vector(0, 0, 1), 2), math.radians(90), math.radians(255)),  # 6
    Part.LineSegment(Vector(27.914214, -36, 0), Vector(38.707107, -25.207107, 0)),  # 7
    Part.ArcOfCircle(Part.Circle(Vector(40, -22.5, 0), Vector(0, 0, 1), 3), math.radians(-115.528779), math.radians(-64.471221)),  # 8
    Part.LineSegment(Vector(41.292893, -25.207107, 0), Vector(46, -29.914214, 0)),  # 9
    Part.LineSegment(Vector(46, -29.914214, 0), Vector(46, -31.674514, 0)),  # 10
    Part.ArcOfCircle(Part.Circle(Vector(44, -31.674514, 0), Vector(0, 0, 1), 2), math.radians(-57.994617), math.radians(0)),  # 11
    Part.LineSegment(Vector(45.059998, -33.370511, 0), Vector(41.339221, -35.695997, 0)),  # 12
    Part.ArcOfCircle(Part.Circle(Vector(40.279223, -34, 0), Vector(0, 0, 1), 2), math.radians(-90), math.radians(-57.994617)),  # 13
    Part.LineSegment(Vector(40.279223, -36, 0), Vector(27.914214, -36, 0)),  # 14
    Part.LineSegment(Vector(42.707107, -21.207107, 0), Vector(43.414214, -20.5, 0)),  # 15
    Part.LineSegment(Vector(43.414214, -20.5, 0), Vector(44, -20.5, 0)),  # 16
    Part.ArcOfCircle(Part.Circle(Vector(44, -22.5, 0), Vector(0, 0, 1), 2), math.radians(0), math.radians(90)),  # 17
    Part.LineSegment(Vector(46, -22.5, 0), Vector(46, -27.085786, 0)),  # 18
    Part.LineSegment(Vector(46, -27.085786, 0), Vector(42.707107, -23.792893, 0)),  # 19
    Part.ArcOfCircle(Part.Circle(Vector(40, -22.5, 0), Vector(0, 0, 1), 3), math.radians(-25.528779), math.radians(25.528779)),  # 20
    Part.ArcOfCircle(Part.Circle(Vector(44, 31.674514, 0), Vector(0, 0, 1), 2), math.radians(0), math.radians(57.994617)),  # 21
    Part.LineSegment(Vector(46, 31.674514, 0), Vector(46, 29.914214, 0)),  # 22
    Part.LineSegment(Vector(46, 29.914214, 0), Vector(41.292893, 25.207107, 0)),  # 23
    Part.ArcOfCircle(Part.Circle(Vector(40, 22.5, 0), Vector(0, 0, 1), 3), math.radians(64.471221), math.radians(115.528779)),  # 24
    Part.LineSegment(Vector(38.707107, 25.207107, 0), Vector(27.914214, 36, 0)),  # 25
    Part.LineSegment(Vector(27.914214, 36, 0), Vector(40.279223, 36, 0)),  # 26
    Part.ArcOfCircle(Part.Circle(Vector(40.279223, 34, 0), Vector(0, 0, 1), 2), math.radians(57.994617), math.radians(90)),  # 27
    Part.LineSegment(Vector(41.339221, 35.695997, 0), Vector(45.059998, 33.370511, 0)),  # 28
    Part.LineSegment(Vector(42.707107, 23.792893, 0), Vector(46, 27.085786, 0)),  # 29
    Part.LineSegment(Vector(46, 27.085786, 0), Vector(46, 22.5, 0)),  # 30
    Part.ArcOfCircle(Part.Circle(Vector(44, 22.5, 0), Vector(0, 0, 1), 2), math.radians(-90), math.radians(0)),  # 31
    Part.LineSegment(Vector(44, 20.5, 0), Vector(43.414214, 20.5, 0)),  # 32
    Part.LineSegment(Vector(43.414214, 20.5, 0), Vector(42.707107, 21.207107, 0)),  # 33
    Part.ArcOfCircle(Part.Circle(Vector(40, 22.5, 0), Vector(0, 0, 1), 3), math.radians(-25.528779), math.radians(25.528779)),  # 34
    Part.LineSegment(Vector(25.085786, 36, 0), Vector(37.292893, 23.792893, 0)),  # 35
    Part.ArcOfCircle(Part.Circle(Vector(40, 22.5, 0), Vector(0, 0, 1), 3), math.radians(154.47122), math.radians(160.52878)),  # 36
    Part.LineSegment(Vector(37.171573, 23.5, 0), Vector(-8.872202, 23.5, 0)),  # 37
    Part.ArcOfCircle(Part.Circle(Vector(-8.872202, 25.5, 0), Vector(0, 0, 1), 2), math.radians(105), math.radians(270)),  # 38
    Part.LineSegment(Vector(-9.38984, 27.431852, 0), Vector(22.332591, 35.931852, 0)),  # 39
    Part.ArcOfCircle(Part.Circle(Vector(22.85023, 34, 0), Vector(0, 0, 1), 2), math.radians(90), math.radians(105)),  # 40
    Part.LineSegment(Vector(22.85023, 36, 0), Vector(25.085786, 36, 0)),  # 41
], False)
sketch10.addConstraint([
    Sketcher.Constraint("Coincident", 0, 2, 1, 1),
    Sketcher.Constraint("Coincident", 1, 2, 2, 1),
    Sketcher.Constraint("Coincident", 2, 2, 3, 1),
    Sketcher.Constraint("Tangent", 3, 2, 4, 2),
    Sketcher.Constraint("Tangent", 4, 1, 5, 1),
    Sketcher.Constraint("Tangent", 5, 2, 6, 2),
    Sketcher.Constraint("Tangent", 6, 1, 0, 1),
    Sketcher.Constraint("Coincident", 7, 2, 8, 1),
    Sketcher.Constraint("Coincident", 8, 2, 9, 1),
    Sketcher.Constraint("Coincident", 9, 2, 10, 1),
    Sketcher.Constraint("Tangent", 10, 2, 11, 2),
    Sketcher.Constraint("Tangent", 11, 1, 12, 1),
    Sketcher.Constraint("Tangent", 12, 2, 13, 2),
    Sketcher.Constraint("Tangent", 13, 1, 14, 1),
    Sketcher.Constraint("Coincident", 14, 2, 7, 1),
    Sketcher.Constraint("Coincident", 15, 2, 16, 1),
    Sketcher.Constraint("Tangent", 16, 2, 17, 2),
    Sketcher.Constraint("Tangent", 17, 1, 18, 1),
    Sketcher.Constraint("Coincident", 18, 2, 19, 1),
    Sketcher.Constraint("Coincident", 19, 2, 20, 1),
    Sketcher.Constraint("Coincident", 20, 2, 15, 1),
    Sketcher.Constraint("Tangent", 21, 1, 22, 1),
    Sketcher.Constraint("Coincident", 22, 2, 23, 1),
    Sketcher.Constraint("Coincident", 23, 2, 24, 1),
    Sketcher.Constraint("Coincident", 24, 2, 25, 1),
    Sketcher.Constraint("Coincident", 25, 2, 26, 1),
    Sketcher.Constraint("Tangent", 26, 2, 27, 2),
    Sketcher.Constraint("Tangent", 27, 1, 28, 1),
    Sketcher.Constraint("Tangent", 28, 2, 21, 2),
    Sketcher.Constraint("Coincident", 29, 2, 30, 1),
    Sketcher.Constraint("Tangent", 30, 2, 31, 2),
    Sketcher.Constraint("Tangent", 31, 1, 32, 1),
    Sketcher.Constraint("Coincident", 32, 2, 33, 1),
    Sketcher.Constraint("Coincident", 33, 2, 34, 1),
    Sketcher.Constraint("Coincident", 34, 2, 29, 1),
    Sketcher.Constraint("Coincident", 35, 2, 36, 1),
    Sketcher.Constraint("Coincident", 36, 2, 37, 1),
    Sketcher.Constraint("Tangent", 37, 2, 38, 2),
    Sketcher.Constraint("Tangent", 38, 1, 39, 1),
    Sketcher.Constraint("Tangent", 39, 2, 40, 2),
    Sketcher.Constraint("Tangent", 40, 1, 41, 1),
    Sketcher.Constraint("Coincident", 41, 2, 35, 1),
    Sketcher.Constraint("Horizontal", 0),
    Sketcher.Constraint("Horizontal", 3),
    Sketcher.Constraint("Vertical", 10),
    Sketcher.Constraint("Horizontal", 14),
    Sketcher.Constraint("Horizontal", 16),
    Sketcher.Constraint("Vertical", 18),
    Sketcher.Constraint("Vertical", 22),
    Sketcher.Constraint("Horizontal", 26),
    Sketcher.Constraint("Vertical", 30),
    Sketcher.Constraint("Horizontal", 32),
    Sketcher.Constraint("Horizontal", 37),
    Sketcher.Constraint("Horizontal", 41),
    Sketcher.Constraint("Coincident", 8, 3, 1, 3),
    Sketcher.Constraint("Coincident", 20, 3, 1, 3),
    Sketcher.Constraint("Coincident", 34, 3, 24, 3),
    Sketcher.Constraint("Coincident", 36, 3, 24, 3),
    Sketcher.Constraint("Equal", 4, 6),
    Sketcher.Constraint("Equal", 1, 8),
    Sketcher.Constraint("Equal", 6, 11),
    Sketcher.Constraint("Equal", 11, 13),
    Sketcher.Constraint("Equal", 13, 17),
    Sketcher.Constraint("Equal", 8, 20),
    Sketcher.Constraint("Equal", 17, 21),
    Sketcher.Constraint("Equal", 20, 24),
    Sketcher.Constraint("Equal", 21, 27),
    Sketcher.Constraint("Equal", 27, 31),
    Sketcher.Constraint("Equal", 24, 34),
    Sketcher.Constraint("Equal", 34, 36),
    Sketcher.Constraint("Equal", 31, 38),
    Sketcher.Constraint("Equal", 38, 40),
    Sketcher.Constraint("Symmetric", 11, 3, 21, 3, -1),
    Sketcher.Constraint("Symmetric", 1, 3, 24, 3, -1),
    Sketcher.Constraint("Symmetric", 13, 3, 27, 3, -1),
    Sketcher.Constraint("Symmetric", 17, 3, 31, 3, -1),
    Sketcher.Constraint("Symmetric", 6, 3, 38, 3, -1),
    Sketcher.Constraint("Symmetric", 4, 3, 40, 3, -1),
    Sketcher.Constraint("Parallel", 2, 7),
    Sketcher.Constraint("Perpendicular", 7, 9),
    Sketcher.Constraint("Perpendicular", 9, 15),
    Sketcher.Constraint("Perpendicular", 15, 19),
    Sketcher.Constraint("Perpendicular", 19, 23),
    Sketcher.Constraint("Perpendicular", 23, 25),
    Sketcher.Constraint("Perpendicular", 25, 29),
    Sketcher.Constraint("Perpendicular", 29, 33),
    Sketcher.Constraint("Parallel", 33, 35),
    Sketcher.Constraint("Horizontal", 4, 3, 13, 3),
    Sketcher.Constraint("Horizontal", 8, 3, 17, 3),
    Sketcher.Constraint("Horizontal", 7, 2, 8, 2),
    Sketcher.Constraint("Horizontal", 1, 2, 19, 2),
    Sketcher.Constraint("Horizontal", 23, 2, 24, 2),
    Sketcher.Constraint("Horizontal", 34, 2, 35, 2),
    Sketcher.Constraint("Vertical", 11, 3, 17, 3),
    Sketcher.Constraint("Vertical", 19, 2, 20, 2),
    Sketcher.Constraint("Vertical", 8, 2, 23, 2),
    Sketcher.Constraint("Vertical", 14, 2, 25, 2),
    Sketcher.Constraint("Vertical", 15, 2, 32, 2),
    Sketcher.Constraint("Vertical", 33, 2, 34, 2),
    Sketcher.Constraint("Radius", 1, 3.0),
    Sketcher.Constraint("Radius", 4, 2.0),
    Sketcher.Constraint("Angle", 5, Q("165 deg")),
    Sketcher.Constraint("Distance", 15, 1.0),
    Sketcher.Constraint("DistanceX", -1, 1, 1, 3, 40.0),
    Sketcher.Constraint("DistanceY", 4, 3, -1, 1, 34.0),
    Sketcher.Constraint("DistanceX", -1, 1, 11, 3, 44.0),
    Sketcher.Constraint("DistanceY", 6, 3, 1, 3, 3.0),
    Sketcher.Constraint("DistanceY", 20, 3, 24, 3, 45.0),
    Sketcher.Constraint("DistanceX", 35, 2, 23, 2, 4.0),
    Sketcher.Constraint("DistanceY", 10, 2, 10, 1, 1.760301),
    Sketcher.Constraint("DistanceX", 14, 2, 14, 1, 12.365009),
    Sketcher.Constraint("DistanceX", 4, 1, 1, 2, 14.960302),
])
pocket9 = body.newObject("PartDesign::Pocket", "Pocket008")
pocket9.Profile = sketch10
pocket9.Type = "ThroughAll"

# Sketch on XZ plane
sketch11 = body.newObject("Sketcher::SketchObject", "Sketch010")
sketch11.AttachmentSupport = (doc.getObject("XZ_Plane"), [""])
sketch11.MapMode = "FlatFace"
sketch11.AttachmentOffset = App.Placement(Vector(0, 0, -1), App.Rotation())
sketch11.addGeometry([
    Part.ArcOfCircle(Part.Circle(Vector(-23.1, -28.47517, 0), Vector(0, 0, 1), 1.27), math.radians(180), math.radians(270)),  # 0
    Part.LineSegment(Vector(-24.37, -28.47517, 0), Vector(-24.37, -27.01517, 0)),  # 1
    Part.ArcOfCircle(Part.Circle(Vector(-23.1, -27.01517, 0), Vector(0, 0, 1), 1.27), math.radians(90), math.radians(180)),  # 2
    Part.LineSegment(Vector(-23.1, -25.74517, 0), Vector(-18.909, -25.74517, 0)),  # 3
    Part.ArcOfCircle(Part.Circle(Vector(-18.909, -27.01517, 0), Vector(0, 0, 1), 1.27), math.radians(0), math.radians(90)),  # 4
    Part.LineSegment(Vector(-17.639, -27.01517, 0), Vector(-17.639, -28.47517, 0)),  # 5
    Part.ArcOfCircle(Part.Circle(Vector(-18.909, -28.47517, 0), Vector(0, 0, 1), 1.27), math.radians(-90), math.radians(0)),  # 6
    Part.LineSegment(Vector(-18.909, -29.74517, 0), Vector(-23.1, -29.74517, 0)),  # 7
], False)
sketch11.addConstraint([
    Sketcher.Constraint("Tangent", 0, 1, 1, 1),
    Sketcher.Constraint("Tangent", 1, 2, 2, 2),
    Sketcher.Constraint("Tangent", 2, 1, 3, 1),
    Sketcher.Constraint("Tangent", 3, 2, 4, 2),
    Sketcher.Constraint("Tangent", 4, 1, 5, 1),
    Sketcher.Constraint("Tangent", 5, 2, 6, 2),
    Sketcher.Constraint("Tangent", 6, 1, 7, 1),
    Sketcher.Constraint("Tangent", 7, 2, 0, 2),
    Sketcher.Constraint("Vertical", 1),
    Sketcher.Constraint("Horizontal", 3),
    Sketcher.Constraint("Vertical", 5),
    Sketcher.Constraint("Horizontal", 7),
    Sketcher.Constraint("Equal", 0, 2),
    Sketcher.Constraint("Equal", 2, 4),
    Sketcher.Constraint("Equal", 4, 6),
    Sketcher.Constraint("Radius", 0, 1.27),
    Sketcher.Constraint("DistanceY", 6, 1, 3, 2, 4.0),
    Sketcher.Constraint("DistanceX", 0, 3, -1, 1, 23.1),
    Sketcher.Constraint("DistanceX", 3, 1, 3, 2, 4.191),
    Sketcher.Constraint("DistanceY", 0, 3, -1, 1, 28.47517),
])
pocket10 = body.newObject("PartDesign::Pocket", "Pocket009")
pocket10.Profile = sketch11
pocket10.Type = "ThroughAll"
pocket10.Reversed = True

doc.recompute()
